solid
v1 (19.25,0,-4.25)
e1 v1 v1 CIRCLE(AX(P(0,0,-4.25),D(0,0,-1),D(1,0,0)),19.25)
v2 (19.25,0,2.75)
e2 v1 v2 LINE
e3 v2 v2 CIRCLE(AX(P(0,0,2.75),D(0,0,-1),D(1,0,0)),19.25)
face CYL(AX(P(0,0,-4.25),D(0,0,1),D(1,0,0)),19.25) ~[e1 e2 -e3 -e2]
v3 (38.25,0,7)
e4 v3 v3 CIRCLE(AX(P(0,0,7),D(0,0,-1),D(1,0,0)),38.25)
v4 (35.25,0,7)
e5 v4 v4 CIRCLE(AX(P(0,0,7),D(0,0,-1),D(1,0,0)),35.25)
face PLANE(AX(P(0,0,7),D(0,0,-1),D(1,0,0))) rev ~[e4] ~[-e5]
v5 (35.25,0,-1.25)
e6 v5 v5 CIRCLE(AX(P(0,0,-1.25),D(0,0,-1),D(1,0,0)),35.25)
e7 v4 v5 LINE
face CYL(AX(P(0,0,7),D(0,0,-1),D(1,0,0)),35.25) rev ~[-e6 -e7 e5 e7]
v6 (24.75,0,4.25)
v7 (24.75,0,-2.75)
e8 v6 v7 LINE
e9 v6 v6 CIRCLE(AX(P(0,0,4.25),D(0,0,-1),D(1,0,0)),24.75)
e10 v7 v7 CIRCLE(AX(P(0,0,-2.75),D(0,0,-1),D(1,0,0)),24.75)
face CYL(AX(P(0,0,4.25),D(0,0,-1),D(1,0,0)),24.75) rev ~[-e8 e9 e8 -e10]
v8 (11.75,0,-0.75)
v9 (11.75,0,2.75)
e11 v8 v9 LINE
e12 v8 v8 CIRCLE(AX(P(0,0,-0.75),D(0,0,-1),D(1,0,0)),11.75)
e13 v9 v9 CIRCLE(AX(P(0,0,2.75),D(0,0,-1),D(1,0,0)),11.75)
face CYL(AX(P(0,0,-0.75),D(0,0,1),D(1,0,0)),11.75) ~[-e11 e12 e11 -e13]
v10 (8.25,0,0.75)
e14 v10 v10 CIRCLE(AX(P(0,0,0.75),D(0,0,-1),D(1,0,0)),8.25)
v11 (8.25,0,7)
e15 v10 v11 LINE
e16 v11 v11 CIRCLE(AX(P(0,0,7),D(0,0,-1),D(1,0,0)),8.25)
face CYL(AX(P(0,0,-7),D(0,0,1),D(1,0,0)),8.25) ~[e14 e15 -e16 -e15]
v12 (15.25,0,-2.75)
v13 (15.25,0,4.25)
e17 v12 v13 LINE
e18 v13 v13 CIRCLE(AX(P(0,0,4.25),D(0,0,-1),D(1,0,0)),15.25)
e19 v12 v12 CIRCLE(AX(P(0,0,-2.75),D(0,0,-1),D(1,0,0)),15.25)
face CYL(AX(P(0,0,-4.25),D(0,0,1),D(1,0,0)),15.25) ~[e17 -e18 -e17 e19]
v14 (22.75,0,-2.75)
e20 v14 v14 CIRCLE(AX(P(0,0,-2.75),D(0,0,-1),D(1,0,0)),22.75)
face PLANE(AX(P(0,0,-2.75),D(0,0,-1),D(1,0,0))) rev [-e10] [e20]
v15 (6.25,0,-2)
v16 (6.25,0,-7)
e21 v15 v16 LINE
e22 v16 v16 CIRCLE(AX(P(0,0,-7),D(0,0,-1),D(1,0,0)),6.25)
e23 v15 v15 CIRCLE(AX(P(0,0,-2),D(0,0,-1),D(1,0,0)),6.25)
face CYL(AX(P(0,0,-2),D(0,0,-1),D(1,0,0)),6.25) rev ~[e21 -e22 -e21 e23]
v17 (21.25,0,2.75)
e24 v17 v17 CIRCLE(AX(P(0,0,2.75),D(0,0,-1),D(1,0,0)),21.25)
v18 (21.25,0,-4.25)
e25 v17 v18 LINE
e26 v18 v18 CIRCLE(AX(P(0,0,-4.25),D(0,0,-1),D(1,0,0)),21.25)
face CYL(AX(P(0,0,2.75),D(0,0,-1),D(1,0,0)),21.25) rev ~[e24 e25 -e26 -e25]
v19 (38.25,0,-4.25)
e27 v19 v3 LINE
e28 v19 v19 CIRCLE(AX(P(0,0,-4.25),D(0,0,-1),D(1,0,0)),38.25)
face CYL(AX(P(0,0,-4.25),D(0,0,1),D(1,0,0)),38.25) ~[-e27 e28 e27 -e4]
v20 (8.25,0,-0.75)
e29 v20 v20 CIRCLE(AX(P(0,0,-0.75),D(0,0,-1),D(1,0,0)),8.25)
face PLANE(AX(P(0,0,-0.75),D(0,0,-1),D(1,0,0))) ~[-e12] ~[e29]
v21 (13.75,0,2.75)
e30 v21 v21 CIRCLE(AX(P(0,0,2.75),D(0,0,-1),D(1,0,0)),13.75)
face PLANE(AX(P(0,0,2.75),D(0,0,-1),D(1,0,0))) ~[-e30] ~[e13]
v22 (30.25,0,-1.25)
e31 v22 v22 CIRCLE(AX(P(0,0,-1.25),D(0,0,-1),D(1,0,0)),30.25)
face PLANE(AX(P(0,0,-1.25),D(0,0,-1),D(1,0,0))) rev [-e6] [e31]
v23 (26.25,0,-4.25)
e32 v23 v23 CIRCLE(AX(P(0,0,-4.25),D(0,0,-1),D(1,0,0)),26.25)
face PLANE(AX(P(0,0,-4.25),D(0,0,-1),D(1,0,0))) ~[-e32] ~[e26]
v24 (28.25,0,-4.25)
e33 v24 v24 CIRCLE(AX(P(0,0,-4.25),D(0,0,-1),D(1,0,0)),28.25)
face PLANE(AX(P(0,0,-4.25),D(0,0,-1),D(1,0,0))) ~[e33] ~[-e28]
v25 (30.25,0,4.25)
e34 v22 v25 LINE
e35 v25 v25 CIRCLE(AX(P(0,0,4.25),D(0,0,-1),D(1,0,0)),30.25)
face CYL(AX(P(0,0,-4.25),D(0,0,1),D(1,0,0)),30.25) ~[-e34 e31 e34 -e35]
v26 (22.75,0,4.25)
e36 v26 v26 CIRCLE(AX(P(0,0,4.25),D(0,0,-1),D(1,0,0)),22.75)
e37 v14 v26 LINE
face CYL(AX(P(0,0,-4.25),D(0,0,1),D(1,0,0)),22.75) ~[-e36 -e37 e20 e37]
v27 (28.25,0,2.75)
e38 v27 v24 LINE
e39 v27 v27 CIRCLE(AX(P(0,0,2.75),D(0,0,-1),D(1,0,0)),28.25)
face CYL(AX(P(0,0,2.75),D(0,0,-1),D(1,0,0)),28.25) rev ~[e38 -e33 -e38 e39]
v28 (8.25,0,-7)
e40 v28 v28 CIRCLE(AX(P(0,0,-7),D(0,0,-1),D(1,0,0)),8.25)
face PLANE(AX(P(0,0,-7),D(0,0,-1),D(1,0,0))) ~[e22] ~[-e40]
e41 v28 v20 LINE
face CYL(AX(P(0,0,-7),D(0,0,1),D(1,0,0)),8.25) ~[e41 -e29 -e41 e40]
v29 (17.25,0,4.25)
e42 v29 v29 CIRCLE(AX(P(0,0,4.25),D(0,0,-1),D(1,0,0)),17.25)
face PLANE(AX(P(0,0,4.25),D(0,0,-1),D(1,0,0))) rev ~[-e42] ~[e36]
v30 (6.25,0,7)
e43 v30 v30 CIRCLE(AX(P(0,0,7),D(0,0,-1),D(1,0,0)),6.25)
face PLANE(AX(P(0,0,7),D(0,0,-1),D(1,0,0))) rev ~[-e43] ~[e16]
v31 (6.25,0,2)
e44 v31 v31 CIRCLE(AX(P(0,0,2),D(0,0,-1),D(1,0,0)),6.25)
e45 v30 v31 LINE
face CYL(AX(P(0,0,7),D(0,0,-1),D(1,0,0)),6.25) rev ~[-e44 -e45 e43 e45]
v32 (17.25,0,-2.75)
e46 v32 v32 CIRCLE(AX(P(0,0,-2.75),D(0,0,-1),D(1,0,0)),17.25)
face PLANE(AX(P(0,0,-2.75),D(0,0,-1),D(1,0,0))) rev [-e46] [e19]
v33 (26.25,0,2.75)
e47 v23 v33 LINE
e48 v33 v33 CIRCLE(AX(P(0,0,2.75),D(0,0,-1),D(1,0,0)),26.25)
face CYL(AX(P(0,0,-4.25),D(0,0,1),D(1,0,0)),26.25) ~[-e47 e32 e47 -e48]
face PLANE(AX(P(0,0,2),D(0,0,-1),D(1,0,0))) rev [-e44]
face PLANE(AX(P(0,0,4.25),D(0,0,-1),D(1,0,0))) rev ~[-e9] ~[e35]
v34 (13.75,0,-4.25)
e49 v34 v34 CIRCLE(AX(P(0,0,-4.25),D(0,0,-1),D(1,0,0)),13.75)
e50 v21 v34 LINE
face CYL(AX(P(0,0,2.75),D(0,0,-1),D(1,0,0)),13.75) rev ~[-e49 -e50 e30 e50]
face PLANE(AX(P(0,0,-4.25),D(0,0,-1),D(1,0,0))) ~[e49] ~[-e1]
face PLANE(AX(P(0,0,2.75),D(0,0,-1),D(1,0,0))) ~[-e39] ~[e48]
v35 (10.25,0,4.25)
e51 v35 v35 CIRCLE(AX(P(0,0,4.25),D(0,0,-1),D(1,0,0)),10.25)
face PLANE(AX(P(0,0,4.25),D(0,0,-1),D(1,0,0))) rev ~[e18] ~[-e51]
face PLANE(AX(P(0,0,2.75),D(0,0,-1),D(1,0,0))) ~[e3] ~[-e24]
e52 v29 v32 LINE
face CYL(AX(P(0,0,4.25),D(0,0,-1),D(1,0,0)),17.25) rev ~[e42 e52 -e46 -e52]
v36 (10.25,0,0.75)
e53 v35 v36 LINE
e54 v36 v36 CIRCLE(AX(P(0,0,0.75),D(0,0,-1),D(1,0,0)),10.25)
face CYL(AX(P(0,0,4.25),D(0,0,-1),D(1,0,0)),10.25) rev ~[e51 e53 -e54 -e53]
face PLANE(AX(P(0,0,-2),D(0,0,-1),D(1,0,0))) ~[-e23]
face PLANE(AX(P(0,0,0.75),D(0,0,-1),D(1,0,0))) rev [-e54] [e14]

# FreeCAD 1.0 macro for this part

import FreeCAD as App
import Part
import Sketcher

V = App.Vector


def add_polygon(sketch, points):
    """Adds a closed chain of lines whose ends are joined by coincident constraints."""
    first, n = sketch.GeometryCount, len(points)
    for a, b in zip(points, points[1:] + points[:1]):
        sketch.addGeometry(Part.LineSegment(App.Vector(*a, 0), App.Vector(*b, 0)), False)
    for i in range(n):
        sketch.addConstraint(Sketcher.Constraint("Coincident", first + i, 2, first + (i + 1) % n, 1))

doc = App.newDocument("Part")
body = doc.addObject("PartDesign::Body", "Body")

sketch1 = body.newObject("Sketcher::SketchObject", "Sketch")
sketch1.AttachmentSupport = (doc.getObject("XZ_Plane"), [""])
sketch1.MapMode = "FlatFace"
add_polygon(sketch1, [(0, 2), (0, -2), (6.2, -2), (6.2, -7), (8.2, -7), (8.2, -0.8), (11.8, -0.8), (11.8, 2.8), (13.8, 2.8), (13.8, -4.2), (19.2, -4.2), (19.2, 2.8), (21.2, 2.8), (21.2, -4.2), (26.2, -4.2), (26.2, 2.8), (28.2, 2.8), (28.2, -4.2), (38.2, -4.2), (38.2, 7), (35.2, 7), (35.2, -1.2), (30.2, -1.2), (30.2, 4.2), (24.8, 4.2), (24.8, -2.8), (22.8, -2.8), (22.8, 4.2), (17.2, 4.2), (17.2, -2.8), (15.2, -2.8), (15.2, 4.2), (10.2, 4.2), (10.2, 0.8), (8.2, 0.8), (8.2, 7), (6.2, 7), (6.2, 2)])
sketch1.addConstraint(Sketcher.Constraint("Vertical", 0))
sketch1.addConstraint(Sketcher.Constraint("Horizontal", 1))
sketch1.addConstraint(Sketcher.Constraint("Vertical", 2))
sketch1.addConstraint(Sketcher.Constraint("Horizontal", 3))
sketch1.addConstraint(Sketcher.Constraint("Vertical", 4))
sketch1.addConstraint(Sketcher.Constraint("Horizontal", 5))
sketch1.addConstraint(Sketcher.Constraint("Vertical", 6))
sketch1.addConstraint(Sketcher.Constraint("Horizontal", 7))
sketch1.addConstraint(Sketcher.Constraint("Vertical", 8))
sketch1.addConstraint(Sketcher.Constraint("Horizontal", 9))
sketch1.addConstraint(Sketcher.Constraint("Vertical", 10))
sketch1.addConstraint(Sketcher.Constraint("Horizontal", 11))
sketch1.addConstraint(Sketcher.Constraint("Vertical", 12))
sketch1.addConstraint(Sketcher.Constraint("Horizontal", 13))
sketch1.addConstraint(Sketcher.Constraint("Vertical", 14))
sketch1.addConstraint(Sketcher.Constraint("Horizontal", 15))
sketch1.addConstraint(Sketcher.Constraint("Vertical", 16))
sketch1.addConstraint(Sketcher.Constraint("Horizontal", 17))
sketch1.addConstraint(Sketcher.Constraint("Vertical", 18))
sketch1.addConstraint(Sketcher.Constraint("Horizontal", 19))
sketch1.addConstraint(Sketcher.Constraint("Vertical", 20))
sketch1.addConstraint(Sketcher.Constraint("Horizontal", 21))
sketch1.addConstraint(Sketcher.Constraint("Vertical", 22))
sketch1.addConstraint(Sketcher.Constraint("Horizontal", 23))
sketch1.addConstraint(Sketcher.Constraint("Vertical", 24))
sketch1.addConstraint(Sketcher.Constraint("Horizontal", 25))
sketch1.addConstraint(Sketcher.Constraint("Vertical", 26))
sketch1.addConstraint(Sketcher.Constraint("Horizontal", 27))
sketch1.addConstraint(Sketcher.Constraint("Vertical", 28))
sketch1.addConstraint(Sketcher.Constraint("Horizontal", 29))
sketch1.addConstraint(Sketcher.Constraint("Vertical", 30))
sketch1.addConstraint(Sketcher.Constraint("Horizontal", 31))
sketch1.addConstraint(Sketcher.Constraint("Vertical", 32))
sketch1.addConstraint(Sketcher.Constraint("Horizontal", 33))
sketch1.addConstraint(Sketcher.Constraint("Vertical", 34))
sketch1.addConstraint(Sketcher.Constraint("Horizontal", 35))
sketch1.addConstraint(Sketcher.Constraint("Vertical", 36))
sketch1.addConstraint(Sketcher.Constraint("Horizontal", 37))
sketch1.addConstraint(Sketcher.Constraint("Symmetric", 0, 2, 37, 2, -1, 1))
sketch1.addConstraint(Sketcher.Constraint("Symmetric", 4, 2, 33, 2, -1))
sketch1.addConstraint(Sketcher.Constraint("Symmetric", 2, 2, 35, 2, -1))
sketch1.addConstraint(Sketcher.Constraint("Horizontal", 7, 2, 10, 2))
sketch1.addConstraint(Sketcher.Constraint("Horizontal", 9, 2, 12, 2))
sketch1.addConstraint(Sketcher.Constraint("Horizontal", 11, 2, 14, 2))
sketch1.addConstraint(Sketcher.Constraint("Horizontal", 13, 2, 16, 2))
sketch1.addConstraint(Sketcher.Constraint("Horizontal", 23, 2, 26, 2))
sketch1.addConstraint(Sketcher.Constraint("Horizontal", 25, 2, 28, 2))
sketch1.addConstraint(Sketcher.Constraint("Horizontal", 27, 2, 30, 2))
sketch1.addConstraint(Sketcher.Constraint("Horizontal", 19, 2, 34, 2))
sketch1.addConstraint(Sketcher.Constraint("Equal", 3, 7))
sketch1.addConstraint(Sketcher.Constraint("Equal", 7, 11))
sketch1.addConstraint(Sketcher.Constraint("Equal", 11, 15))
sketch1.addConstraint(Sketcher.Constraint("Equal", 13, 21))
sketch1.addConstraint(Sketcher.Constraint("Equal", 9, 23))
sketch1.addConstraint(Sketcher.Constraint("Equal", 15, 25))
sketch1.addConstraint(Sketcher.Constraint("Equal", 23, 27))
sketch1.addConstraint(Sketcher.Constraint("Equal", 25, 29))
sketch1.addConstraint(Sketcher.Constraint("Equal", 21, 31))
sketch1.addConstraint(Sketcher.Constraint("Equal", 29, 33))
sketch1.addConstraint(Sketcher.Constraint("Equal", 31, 2))
sketch1.addConstraint(Sketcher.Constraint("Equal", 37, 4))
sketch1.addConstraint(Sketcher.Constraint("Equal", 5, 6))
sketch1.addConstraint(Sketcher.Constraint("Equal", 27, 22))
sketch1.addConstraint(Sketcher.Constraint("Equal", 16, 24))
sketch1.addConstraint(Sketcher.Constraint("Equal", 6, 32))
sketch1.addConstraint(Sketcher.Constraint("DistanceX", 3, 1, 3, 2, 2.0))
sketch1.addConstraint(Sketcher.Constraint("DistanceX", 13, 1, 13, 2, 5.0))
sketch1.addConstraint(Sketcher.Constraint("DistanceX", 17, 1, 17, 2, 10.0))
sketch1.addConstraint(Sketcher.Constraint("DistanceX", 19, 2, 19, 1, 3.0))
sketch1.addConstraint(Sketcher.Constraint("DistanceY", 0, 2, 0, 1, 4.0))
sketch1.addConstraint(Sketcher.Constraint("DistanceY", 8, 2, 8, 1, 7.0))
sketch1.addConstraint(Sketcher.Constraint("DistanceX", 5, 1, 5, 2, 3.5))
sketch1.addConstraint(Sketcher.Constraint("DistanceY", 17, 2, 20, 2, 3.0))
revolution = body.newObject("PartDesign::Revolution", "Revolution")
revolution.Profile = sketch1
revolution.ReferenceAxis = (sketch1, ["V_Axis"])
revolution.Angle = 360

doc.recompute()
